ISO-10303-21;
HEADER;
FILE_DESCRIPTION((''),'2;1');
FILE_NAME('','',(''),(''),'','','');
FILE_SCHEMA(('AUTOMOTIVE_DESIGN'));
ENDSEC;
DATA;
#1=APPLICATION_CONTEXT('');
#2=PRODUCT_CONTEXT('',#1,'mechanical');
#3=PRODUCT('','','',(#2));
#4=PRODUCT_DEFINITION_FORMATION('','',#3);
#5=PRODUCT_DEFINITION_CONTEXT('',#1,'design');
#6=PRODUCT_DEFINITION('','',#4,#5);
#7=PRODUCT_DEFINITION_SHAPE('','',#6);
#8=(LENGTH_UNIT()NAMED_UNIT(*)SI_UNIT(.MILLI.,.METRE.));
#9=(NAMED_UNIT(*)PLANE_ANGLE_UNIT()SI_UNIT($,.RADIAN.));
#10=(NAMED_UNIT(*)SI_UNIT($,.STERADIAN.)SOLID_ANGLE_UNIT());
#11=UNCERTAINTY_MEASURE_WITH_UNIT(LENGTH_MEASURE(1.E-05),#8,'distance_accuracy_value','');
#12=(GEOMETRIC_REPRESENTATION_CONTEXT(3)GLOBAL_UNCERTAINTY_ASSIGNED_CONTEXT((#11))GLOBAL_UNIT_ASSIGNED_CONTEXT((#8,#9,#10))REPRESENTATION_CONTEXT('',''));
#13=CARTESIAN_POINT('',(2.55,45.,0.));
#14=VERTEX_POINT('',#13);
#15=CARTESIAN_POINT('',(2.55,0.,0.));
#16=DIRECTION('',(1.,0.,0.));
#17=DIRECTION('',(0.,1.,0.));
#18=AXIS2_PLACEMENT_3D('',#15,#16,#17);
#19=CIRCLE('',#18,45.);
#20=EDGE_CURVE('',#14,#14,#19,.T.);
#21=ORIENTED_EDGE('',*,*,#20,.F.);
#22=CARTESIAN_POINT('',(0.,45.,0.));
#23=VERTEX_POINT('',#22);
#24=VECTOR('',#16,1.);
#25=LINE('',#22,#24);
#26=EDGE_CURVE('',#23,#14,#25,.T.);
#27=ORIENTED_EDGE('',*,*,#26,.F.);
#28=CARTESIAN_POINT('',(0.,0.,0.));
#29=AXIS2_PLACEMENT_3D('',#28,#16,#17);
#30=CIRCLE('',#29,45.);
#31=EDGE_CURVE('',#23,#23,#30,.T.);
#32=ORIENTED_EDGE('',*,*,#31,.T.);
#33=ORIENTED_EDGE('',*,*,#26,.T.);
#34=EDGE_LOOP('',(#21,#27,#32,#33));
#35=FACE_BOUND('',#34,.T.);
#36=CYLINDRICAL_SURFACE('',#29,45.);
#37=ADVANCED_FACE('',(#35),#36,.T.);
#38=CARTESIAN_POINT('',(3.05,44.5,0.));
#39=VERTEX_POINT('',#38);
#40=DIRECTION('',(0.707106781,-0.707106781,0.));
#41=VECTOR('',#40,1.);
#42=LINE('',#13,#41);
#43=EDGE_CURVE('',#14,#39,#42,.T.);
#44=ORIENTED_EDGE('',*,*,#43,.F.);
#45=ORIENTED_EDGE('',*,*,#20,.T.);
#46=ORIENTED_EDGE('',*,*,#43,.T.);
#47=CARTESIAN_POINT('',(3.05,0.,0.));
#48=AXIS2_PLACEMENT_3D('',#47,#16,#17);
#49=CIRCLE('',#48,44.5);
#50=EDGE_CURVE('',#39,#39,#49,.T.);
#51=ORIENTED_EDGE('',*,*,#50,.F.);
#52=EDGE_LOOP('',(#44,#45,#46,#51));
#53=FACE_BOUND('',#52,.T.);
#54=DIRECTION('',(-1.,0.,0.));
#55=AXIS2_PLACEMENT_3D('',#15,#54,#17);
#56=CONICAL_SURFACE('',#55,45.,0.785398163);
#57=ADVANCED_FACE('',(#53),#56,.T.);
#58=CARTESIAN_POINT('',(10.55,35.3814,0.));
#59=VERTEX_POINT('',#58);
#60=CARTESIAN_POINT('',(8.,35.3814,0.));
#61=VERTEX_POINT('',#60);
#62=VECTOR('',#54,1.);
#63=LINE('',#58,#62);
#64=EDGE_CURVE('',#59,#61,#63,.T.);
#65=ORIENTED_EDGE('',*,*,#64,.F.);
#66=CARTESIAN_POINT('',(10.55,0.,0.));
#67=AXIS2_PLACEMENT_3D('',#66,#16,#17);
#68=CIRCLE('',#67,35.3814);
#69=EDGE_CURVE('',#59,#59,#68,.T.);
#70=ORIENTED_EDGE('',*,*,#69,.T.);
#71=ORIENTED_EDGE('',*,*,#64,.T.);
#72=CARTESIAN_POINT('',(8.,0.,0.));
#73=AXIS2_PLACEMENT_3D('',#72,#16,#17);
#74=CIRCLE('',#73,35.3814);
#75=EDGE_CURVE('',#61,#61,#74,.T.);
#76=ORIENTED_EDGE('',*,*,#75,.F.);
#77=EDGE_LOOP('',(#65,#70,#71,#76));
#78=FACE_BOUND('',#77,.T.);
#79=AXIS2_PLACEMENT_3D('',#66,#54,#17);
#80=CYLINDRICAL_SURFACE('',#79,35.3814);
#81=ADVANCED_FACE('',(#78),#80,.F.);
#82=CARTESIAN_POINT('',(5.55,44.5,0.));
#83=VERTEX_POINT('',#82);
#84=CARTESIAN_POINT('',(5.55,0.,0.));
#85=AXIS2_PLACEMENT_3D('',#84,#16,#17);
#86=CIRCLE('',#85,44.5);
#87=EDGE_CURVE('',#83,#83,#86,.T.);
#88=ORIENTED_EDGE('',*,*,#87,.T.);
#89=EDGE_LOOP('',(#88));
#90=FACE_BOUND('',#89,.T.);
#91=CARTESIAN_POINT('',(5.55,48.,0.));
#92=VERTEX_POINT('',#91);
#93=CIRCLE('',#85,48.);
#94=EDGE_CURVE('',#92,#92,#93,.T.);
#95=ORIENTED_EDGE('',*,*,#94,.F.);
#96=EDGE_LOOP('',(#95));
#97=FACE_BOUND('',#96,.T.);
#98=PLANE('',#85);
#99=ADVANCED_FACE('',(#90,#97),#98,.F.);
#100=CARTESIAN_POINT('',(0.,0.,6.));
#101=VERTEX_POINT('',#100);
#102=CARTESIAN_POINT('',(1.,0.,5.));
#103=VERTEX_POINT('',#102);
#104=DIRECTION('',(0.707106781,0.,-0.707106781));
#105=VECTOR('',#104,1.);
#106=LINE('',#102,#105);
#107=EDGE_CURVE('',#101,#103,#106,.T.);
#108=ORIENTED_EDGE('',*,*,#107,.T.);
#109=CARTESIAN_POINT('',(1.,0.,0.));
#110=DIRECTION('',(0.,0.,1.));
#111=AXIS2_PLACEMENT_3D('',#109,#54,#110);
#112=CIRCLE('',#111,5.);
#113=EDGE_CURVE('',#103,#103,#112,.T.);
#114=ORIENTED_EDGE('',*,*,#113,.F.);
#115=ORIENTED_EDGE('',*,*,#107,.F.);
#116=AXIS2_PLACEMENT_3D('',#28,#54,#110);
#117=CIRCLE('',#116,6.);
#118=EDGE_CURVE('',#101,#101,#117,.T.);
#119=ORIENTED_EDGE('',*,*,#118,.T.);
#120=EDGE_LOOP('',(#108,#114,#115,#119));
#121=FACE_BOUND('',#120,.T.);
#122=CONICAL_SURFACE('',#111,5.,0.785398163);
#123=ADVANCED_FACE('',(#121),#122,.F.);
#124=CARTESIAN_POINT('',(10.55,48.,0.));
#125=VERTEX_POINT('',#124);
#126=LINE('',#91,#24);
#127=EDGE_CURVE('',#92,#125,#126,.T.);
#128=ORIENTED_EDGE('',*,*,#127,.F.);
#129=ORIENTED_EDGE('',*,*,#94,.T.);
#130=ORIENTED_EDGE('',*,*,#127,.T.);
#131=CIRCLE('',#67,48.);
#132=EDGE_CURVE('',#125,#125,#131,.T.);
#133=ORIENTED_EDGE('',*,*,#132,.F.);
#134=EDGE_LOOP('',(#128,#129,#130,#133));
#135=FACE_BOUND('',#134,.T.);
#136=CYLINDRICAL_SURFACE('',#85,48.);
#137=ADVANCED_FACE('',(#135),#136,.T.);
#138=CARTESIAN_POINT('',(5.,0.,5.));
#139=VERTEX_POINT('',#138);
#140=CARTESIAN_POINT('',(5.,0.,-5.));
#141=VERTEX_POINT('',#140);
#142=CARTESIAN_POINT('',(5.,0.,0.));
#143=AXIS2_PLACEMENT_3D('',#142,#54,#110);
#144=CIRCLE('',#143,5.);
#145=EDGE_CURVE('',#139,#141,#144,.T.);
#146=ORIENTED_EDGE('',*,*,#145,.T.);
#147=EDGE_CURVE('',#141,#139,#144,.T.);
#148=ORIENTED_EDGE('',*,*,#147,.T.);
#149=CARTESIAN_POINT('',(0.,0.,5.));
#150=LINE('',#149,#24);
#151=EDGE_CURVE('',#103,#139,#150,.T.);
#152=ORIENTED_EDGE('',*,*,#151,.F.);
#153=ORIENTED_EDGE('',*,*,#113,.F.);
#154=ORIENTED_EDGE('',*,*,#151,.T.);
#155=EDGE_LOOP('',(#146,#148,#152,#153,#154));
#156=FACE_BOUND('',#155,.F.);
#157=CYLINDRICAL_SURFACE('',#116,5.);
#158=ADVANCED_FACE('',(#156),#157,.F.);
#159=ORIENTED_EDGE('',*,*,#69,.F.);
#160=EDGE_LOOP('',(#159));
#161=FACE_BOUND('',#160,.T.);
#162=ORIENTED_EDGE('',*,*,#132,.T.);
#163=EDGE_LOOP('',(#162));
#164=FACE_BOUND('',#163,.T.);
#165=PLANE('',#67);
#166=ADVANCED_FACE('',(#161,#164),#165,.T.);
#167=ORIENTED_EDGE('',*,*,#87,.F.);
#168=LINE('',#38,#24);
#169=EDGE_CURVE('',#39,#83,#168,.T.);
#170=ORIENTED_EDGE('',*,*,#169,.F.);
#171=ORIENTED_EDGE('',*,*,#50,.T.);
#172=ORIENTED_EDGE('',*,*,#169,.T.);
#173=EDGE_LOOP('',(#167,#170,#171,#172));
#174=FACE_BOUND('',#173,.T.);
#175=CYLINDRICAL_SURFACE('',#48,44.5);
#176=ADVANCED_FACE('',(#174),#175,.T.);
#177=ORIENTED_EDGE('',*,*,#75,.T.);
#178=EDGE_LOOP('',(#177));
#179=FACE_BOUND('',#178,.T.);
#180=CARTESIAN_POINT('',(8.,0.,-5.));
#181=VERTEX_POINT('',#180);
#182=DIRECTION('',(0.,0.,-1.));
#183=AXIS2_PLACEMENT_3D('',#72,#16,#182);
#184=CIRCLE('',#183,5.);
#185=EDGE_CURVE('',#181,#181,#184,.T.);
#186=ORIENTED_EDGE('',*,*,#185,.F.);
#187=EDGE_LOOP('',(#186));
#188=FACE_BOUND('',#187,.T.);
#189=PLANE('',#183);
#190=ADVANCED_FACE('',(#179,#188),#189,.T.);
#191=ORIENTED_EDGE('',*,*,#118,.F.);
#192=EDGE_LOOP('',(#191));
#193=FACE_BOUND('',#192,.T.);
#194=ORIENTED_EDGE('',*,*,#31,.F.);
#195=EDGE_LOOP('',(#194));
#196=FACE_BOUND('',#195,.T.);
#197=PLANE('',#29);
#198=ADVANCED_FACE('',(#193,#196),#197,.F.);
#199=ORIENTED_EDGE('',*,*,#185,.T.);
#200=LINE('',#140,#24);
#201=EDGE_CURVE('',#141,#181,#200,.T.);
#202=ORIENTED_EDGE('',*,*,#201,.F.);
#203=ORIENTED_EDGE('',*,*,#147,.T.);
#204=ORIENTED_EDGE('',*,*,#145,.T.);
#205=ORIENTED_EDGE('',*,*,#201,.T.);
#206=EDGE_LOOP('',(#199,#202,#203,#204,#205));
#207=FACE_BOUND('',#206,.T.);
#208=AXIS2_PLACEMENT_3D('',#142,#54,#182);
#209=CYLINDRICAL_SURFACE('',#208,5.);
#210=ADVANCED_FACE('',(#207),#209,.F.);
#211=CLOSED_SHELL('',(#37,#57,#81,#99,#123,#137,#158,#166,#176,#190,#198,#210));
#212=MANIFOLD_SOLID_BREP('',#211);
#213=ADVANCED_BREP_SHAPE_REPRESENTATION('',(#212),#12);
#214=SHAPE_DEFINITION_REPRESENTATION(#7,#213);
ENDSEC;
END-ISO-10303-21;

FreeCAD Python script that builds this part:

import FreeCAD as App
import Part
import Sketcher


def edges_at(feature, points):
    """Names of the edges that pass closest to the given points."""
    edges = feature.Shape.Edges
    near = lambda p: min(range(len(edges)), key=lambda i: edges[i].distToShape(Part.Vertex(*p))[0])
    return sorted({f"Edge{near(p) + 1}" for p in points})

doc = App.newDocument("Part")
body = doc.addObject("PartDesign::Body", "Body")

# Sketch on XY plane
sketch1 = body.newObject("Sketcher::SketchObject", "Sketch")
sketch1.AttachmentSupport = (doc.getObject("XY_Plane"), [""])
sketch1.MapMode = "FlatFace"
sketch1.addGeometry(Part.LineSegment(App.Vector(0, 45, 0), App.Vector(0, 0, 0)), False)
sketch1.addGeometry(Part.LineSegment(App.Vector(0, 0, 0), App.Vector(5, 0, 0)), False)
sketch1.addGeometry(Part.LineSegment(App.Vector(5, 0, 0), App.Vector(5, 35.3814, 0)), False)
sketch1.addGeometry(Part.LineSegment(App.Vector(5, 35.3814, 0), App.Vector(10.55, 35.3814, 0)), False)
sketch1.addGeometry(Part.LineSegment(App.Vector(10.55, 35.3814, 0), App.Vector(10.55, 48, 0)), False)
sketch1.addGeometry(Part.LineSegment(App.Vector(10.55, 48, 0), App.Vector(5.55, 48, 0)), False)
sketch1.addGeometry(Part.LineSegment(App.Vector(5.55, 48, 0), App.Vector(5.55, 44.5, 0)), False)
sketch1.addGeometry(Part.LineSegment(App.Vector(5.55, 44.5, 0), App.Vector(3.05, 44.5, 0)), False)
sketch1.addGeometry(Part.LineSegment(App.Vector(3.05, 44.5, 0), App.Vector(2.55, 45, 0)), False)
sketch1.addGeometry(Part.LineSegment(App.Vector(2.55, 45, 0), App.Vector(0, 45, 0)), False)
sketch1.addConstraint(Sketcher.Constraint("Coincident", 0, 2, 1, 1))
sketch1.addConstraint(Sketcher.Constraint("Coincident", 1, 2, 2, 1))
sketch1.addConstraint(Sketcher.Constraint("Coincident", 2, 2, 3, 1))
sketch1.addConstraint(Sketcher.Constraint("Coincident", 3, 2, 4, 1))
sketch1.addConstraint(Sketcher.Constraint("Coincident", 4, 2, 5, 1))
sketch1.addConstraint(Sketcher.Constraint("Coincident", 5, 2, 6, 1))
sketch1.addConstraint(Sketcher.Constraint("Coincident", 6, 2, 7, 1))
sketch1.addConstraint(Sketcher.Constraint("Coincident", 7, 2, 8, 1))
sketch1.addConstraint(Sketcher.Constraint("Coincident", 8, 2, 9, 1))
sketch1.addConstraint(Sketcher.Constraint("Coincident", 9, 2, 0, 1))
sketch1.addConstraint(Sketcher.Constraint("Vertical", 0))
sketch1.addConstraint(Sketcher.Constraint("Horizontal", 1))
sketch1.addConstraint(Sketcher.Constraint("Vertical", 2))
sketch1.addConstraint(Sketcher.Constraint("Horizontal", 3))
sketch1.addConstraint(Sketcher.Constraint("Vertical", 4))
sketch1.addConstraint(Sketcher.Constraint("Horizontal", 5))
sketch1.addConstraint(Sketcher.Constraint("Vertical", 6))
sketch1.addConstraint(Sketcher.Constraint("Horizontal", 7))
sketch1.addConstraint(Sketcher.Constraint("Horizontal", 9))
sketch1.addConstraint(Sketcher.Constraint("Coincident", 0, 2, -1, 1))
sketch1.addConstraint(Sketcher.Constraint("Equal", 1, 5))
sketch1.addConstraint(Sketcher.Constraint("DistanceX", 1, 1, 1, 2, 5.0))
sketch1.addConstraint(Sketcher.Constraint("DistanceY", 0, 2, 0, 1, 45.0))
sketch1.addConstraint(Sketcher.Constraint("DistanceX", 7, 2, 7, 1, 2.5))
sketch1.addConstraint(Sketcher.Constraint("DistanceX", 8, 2, 6, 2, 3.0))
sketch1.addConstraint(Sketcher.Constraint("DistanceY", 8, 2, 5, 2, 3.0))
sketch1.addConstraint(Sketcher.Constraint("DistanceY", 7, 2, 8, 2, 0.5))
sketch1.addConstraint(Sketcher.Constraint("DistanceX", -1, 1, 3, 2, 10.55))
sketch1.addConstraint(Sketcher.Constraint("DistanceY", 2, 1, 2, 2, 35.3814))
revolution = body.newObject("PartDesign::Revolution", "Revolution")
revolution.Profile = sketch1
revolution.ReferenceAxis = (sketch1, ["H_Axis"])
revolution.Angle = 360

# Sketch on YZ plane
sketch2 = body.newObject("Sketcher::SketchObject", "Sketch001")
sketch2.AttachmentSupport = (doc.getObject("YZ_Plane"), [""])
sketch2.MapMode = "FlatFace"
sketch2.addGeometry(Part.Circle(App.Vector(0, 0, 0), App.Vector(0, 0, 1), 5), False)
sketch2.addConstraint(Sketcher.Constraint("Coincident", 0, 3, -1, 1))
sketch2.addConstraint(Sketcher.Constraint("Diameter", 0, 10.0))
pocket1 = body.newObject("PartDesign::Pocket", "Pocket")
pocket1.Profile = sketch2
pocket1.Type = "ThroughAll"
pocket1.Reversed = True
doc.recompute()

chamfer = body.newObject("PartDesign::Chamfer", "Chamfer")
chamfer.Base = (pocket1, edges_at(pocket1, [(0, 0, -5)]))
chamfer.Size = 1

# Sketch on YZ plane
sketch3 = body.newObject("Sketcher::SketchObject", "Sketch002")
sketch3.AttachmentSupport = (doc.getObject("YZ_Plane"), [""])
sketch3.MapMode = "FlatFace"
sketch3.AttachmentOffset = App.Placement(App.Vector(0, 0, 5), App.Rotation())
sketch3.addGeometry(Part.Circle(App.Vector(0, 0, 0), App.Vector(0, 0, 1), 35.3814), False)
sketch3.addGeometry(Part.Circle(App.Vector(0, 0, 0), App.Vector(0, 0, 1), 5), False)
sketch3.addConstraint(Sketcher.Constraint("Coincident", 0, 3, -1, 1))
sketch3.addConstraint(Sketcher.Constraint("Coincident", 1, 3, -1, 1))
sketch3.addConstraint(Sketcher.Constraint("Diameter", 1, 10.0))
sketch3.addConstraint(Sketcher.Constraint("Diameter", 0, 70.7628))
pad1 = body.newObject("PartDesign::Pad", "Pad")
pad1.Profile = sketch3
pad1.Length = 3

doc.recompute()
